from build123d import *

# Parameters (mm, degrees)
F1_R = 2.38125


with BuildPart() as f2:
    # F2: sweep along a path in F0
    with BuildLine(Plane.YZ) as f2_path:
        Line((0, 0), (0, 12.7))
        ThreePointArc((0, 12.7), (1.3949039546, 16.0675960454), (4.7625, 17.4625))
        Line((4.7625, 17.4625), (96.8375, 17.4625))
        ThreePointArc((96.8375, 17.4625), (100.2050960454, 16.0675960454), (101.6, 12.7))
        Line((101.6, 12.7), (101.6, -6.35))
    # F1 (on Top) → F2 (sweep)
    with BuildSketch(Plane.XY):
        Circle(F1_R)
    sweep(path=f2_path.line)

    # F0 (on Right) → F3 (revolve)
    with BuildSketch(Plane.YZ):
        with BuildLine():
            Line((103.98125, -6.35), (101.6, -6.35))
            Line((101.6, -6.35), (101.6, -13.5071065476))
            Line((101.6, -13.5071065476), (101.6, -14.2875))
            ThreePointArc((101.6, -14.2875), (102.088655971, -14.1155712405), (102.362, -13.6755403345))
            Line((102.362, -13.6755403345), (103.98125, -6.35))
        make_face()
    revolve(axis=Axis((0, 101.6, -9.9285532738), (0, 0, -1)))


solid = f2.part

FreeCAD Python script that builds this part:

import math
import FreeCAD as App
import Part
import Sketcher

V = App.Vector
Q = App.Units.Quantity

doc = App.newDocument("Part")
params = doc.addObject("Spreadsheet::Sheet", "Params")
for row, (alias, value) in enumerate([
    ("sketch1_diameter", "0.1875 in"),
    ("sketch2_height", "0.5 in"),
    ("sketch2_radius", "0.1875 in"),
    ("sketch2_height2", "0.75 in"),
    ("sketch3_width", "0.09375 in"),
    ("sketch3_height", "0.3125 in"),
    ("revolution_angle", "360 deg"),
], start=1):
    params.set(f"A{row}", alias)
    params.set(f"B{row}", "=" + value)
    params.setAlias(f"B{row}", alias)

body = doc.addObject("PartDesign::Body", "Body")

sketch1 = doc.addObject("Sketcher::SketchObject", "Sketch")
body.addObject(sketch1)
sketch1.AttachmentSupport = (doc.XY_Plane, [""])
sketch1.MapMode = "FlatFace"
sketch1.addGeometry(Part.Circle(V(0, 0, 0), V(0, 0, 1), 2.4), False)
sketch1.addConstraint([
    Sketcher.Constraint("Coincident", 0, 3, -1, 1),
    Sketcher.Constraint("Diameter", 0, Q("0.1875 in")),
])
sketch1.setExpression("Constraints[1]", "Params.sketch1_diameter")

sketch2 = doc.addObject("Sketcher::SketchObject", "Sketch001")
body.addObject(sketch2)
sketch2.AttachmentSupport = (doc.YZ_Plane, [""])
sketch2.MapMode = "FlatFace"
sketch2.addGeometry([
    Part.LineSegment(V(0, 0, 0), V(0, 12.7, 0)),
    Part.ArcOfCircle(Part.Circle(V(4.8, 12.7, 0), V(0, 0, 1), 4.8), math.radians(90), math.radians(180)),
    Part.LineSegment(V(4.8, 17.5, 0), V(96.8, 17.5, 0)),
    Part.ArcOfCircle(Part.Circle(V(96.8, 12.7, 0), V(0, 0, 1), 4.8), math.radians(0), math.radians(90)),
    Part.LineSegment(V(101.6, 12.7, 0), V(101.6, -6.3, 0)),
], False)
sketch2.addConstraint([
    Sketcher.Constraint("Tangent", 0, 2, 1, 2),
    Sketcher.Constraint("Tangent", 1, 1, 2, 1),
    Sketcher.Constraint("Tangent", 2, 2, 3, 2),
    Sketcher.Constraint("Tangent", 3, 1, 4, 1),
    Sketcher.Constraint("Vertical", 0),
    Sketcher.Constraint("Horizontal", 2),
    Sketcher.Constraint("Vertical", 4),
    Sketcher.Constraint("Coincident", 0, 1, -1, 1),
    Sketcher.Constraint("Equal", 1, 3),
    Sketcher.Constraint("DistanceY", 0, 1, 0, 2, Q("0.5 in")),
    Sketcher.Constraint("DistanceX", -1, 1, 3, 1, Q("4 in")),
    Sketcher.Constraint("Radius", 1, Q("0.1875 in")),
    Sketcher.Constraint("DistanceY", 4, 2, 4, 1, Q("0.75 in")),
])
sketch2.setExpression("Constraints[9]", "Params.sketch2_height")
sketch2.setExpression("Constraints[11]", "Params.sketch2_radius")
sketch2.setExpression("Constraints[12]", "Params.sketch2_height2")
doc.recompute()

additivepipe = doc.addObject("PartDesign::AdditivePipe", "AdditivePipe")
body.addObject(additivepipe)
additivepipe.Profile = sketch1
additivepipe.Spine = (sketch2, ["Edge1", "Edge2", "Edge3", "Edge4", "Edge5"])

sketch3 = doc.addObject("Sketcher::SketchObject", "Sketch002")
body.addObject(sketch3)
sketch3.AttachmentSupport = (doc.YZ_Plane, [""])
sketch3.MapMode = "FlatFace"
sketch3.addGeometry([
    Part.LineSegment(V(104, -6.3, 0), V(101.6, -6.3, 0)),
    Part.LineSegment(V(101.6, -6.3, 0), V(101.6, -14.3, 0)),
    Part.ArcOfCircle(Part.Circle(V(101.6, -13.5, 0), V(0, 0, 1), 0.8), math.radians(-90), math.radians(-12)),
    Part.LineSegment(V(102.4, -13.7, 0), V(104, -6.3, 0)),
], False)
sketch3.addGeometry(Part.LineSegment(V(101.6, -6.3, 0), V(101.6, -14.3, 0)), True)
sketch3.addConstraint([
    Sketcher.Constraint("Coincident", 0, 2, 1, 1),
    Sketcher.Constraint("Coincident", 1, 2, 2, 1),
    Sketcher.Constraint("Tangent", 2, 2, 3, 1),
    Sketcher.Constraint("Coincident", 3, 2, 0, 1),
    Sketcher.Constraint("Horizontal", 0),
    Sketcher.Constraint("Vertical", 1),
    Sketcher.Constraint("Vertical", 4),
    Sketcher.Constraint("Coincident", 4, 1, 0, 2),
    Sketcher.Constraint("Vertical", 2, 3, 0, 2),
    Sketcher.Constraint("Equal", 1, 4),
    Sketcher.Constraint("DistanceX", -1, 1, 2, 3, Q("4 in")),
    Sketcher.Constraint("DistanceX", 0, 2, 0, 1, Q("0.09375 in")),
    Sketcher.Constraint("DistanceY", 1, 2, 1, 1, Q("0.3125 in")),
    Sketcher.Constraint("DistanceY", 0, 2, -1, 1, Q("0.25 in")),
    Sketcher.Constraint("DistanceX", -1, 1, 2, 2, Q("4.03 in")),
])
sketch3.setExpression("Constraints[11]", "Params.sketch3_width")
sketch3.setExpression("Constraints[12]", "Params.sketch3_height")
revolution = doc.addObject("PartDesign::Revolution", "Revolution")
body.addObject(revolution)
revolution.Profile = sketch3
revolution.ReferenceAxis = (sketch3, ["Axis0"])
revolution.setExpression("Angle", "Params.revolution_angle")

doc.recompute()
